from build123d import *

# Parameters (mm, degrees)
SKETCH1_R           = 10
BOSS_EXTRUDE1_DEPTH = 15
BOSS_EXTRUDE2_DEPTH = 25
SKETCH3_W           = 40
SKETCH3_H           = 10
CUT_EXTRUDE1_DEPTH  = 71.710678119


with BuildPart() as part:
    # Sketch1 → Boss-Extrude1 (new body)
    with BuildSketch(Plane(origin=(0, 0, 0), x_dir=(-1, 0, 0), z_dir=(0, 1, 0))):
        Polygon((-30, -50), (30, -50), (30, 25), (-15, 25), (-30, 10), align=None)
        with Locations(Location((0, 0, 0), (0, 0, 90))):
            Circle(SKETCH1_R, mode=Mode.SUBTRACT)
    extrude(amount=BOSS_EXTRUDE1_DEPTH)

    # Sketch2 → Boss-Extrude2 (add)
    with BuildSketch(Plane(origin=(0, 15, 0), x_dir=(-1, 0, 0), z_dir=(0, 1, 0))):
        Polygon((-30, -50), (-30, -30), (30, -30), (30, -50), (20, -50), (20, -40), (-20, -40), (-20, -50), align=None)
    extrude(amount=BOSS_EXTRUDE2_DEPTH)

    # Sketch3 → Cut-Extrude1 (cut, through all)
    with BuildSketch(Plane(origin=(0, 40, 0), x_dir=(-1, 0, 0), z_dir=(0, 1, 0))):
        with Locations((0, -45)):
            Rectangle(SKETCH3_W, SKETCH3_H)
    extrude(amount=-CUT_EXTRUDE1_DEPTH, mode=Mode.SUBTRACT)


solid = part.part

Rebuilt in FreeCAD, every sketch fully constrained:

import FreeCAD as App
import Part
import Sketcher
Q = App.Units.Quantity


def add_polygon(sketch, points):
    """Adds a closed chain of lines whose ends are joined by coincident constraints."""
    first, n = sketch.GeometryCount, len(points)
    for a, b in zip(points, points[1:] + points[:1]):
        sketch.addGeometry(Part.LineSegment(App.Vector(*a, 0), App.Vector(*b, 0)), False)
    for i in range(n):
        sketch.addConstraint(Sketcher.Constraint("Coincident", first + i, 2, first + (i + 1) % n, 1))

doc = App.newDocument("Part")
params = doc.addObject("Spreadsheet::Sheet", "Params")
for row, (alias, value) in enumerate([
    ("sketch1_diameter", "20 mm"),
    ("sketch1_width", "60 mm"),
    ("sketch1_width2", "45 mm"),
    ("sketch1_height", "75 mm"),
    ("pad1_length", "15 mm"),
    ("sketch2_width", "10 mm"),
    ("sketch2_width2", "40 mm"),
    ("sketch2_height", "20 mm"),
    ("pad2_length", "25 mm"),
    ("sketch3_width", "40 mm"),
    ("sketch3_height", "10 mm"),
], start=1):
    params.set(f"A{row}", alias)
    params.set(f"B{row}", "=" + value)
    params.setAlias(f"B{row}", alias)

body = doc.addObject("PartDesign::Body", "Body")

# Sketch on XZ plane
sketch1 = body.newObject("Sketcher::SketchObject", "Sketch")
sketch1.AttachmentSupport = (doc.getObject("XZ_Plane"), [""])
sketch1.MapMode = "FlatFace"
add_polygon(sketch1, [(30, -50), (-30, -50), (-30, 25), (15, 25), (30, 10)])  # lines 0-4
sketch1.addGeometry(Part.Circle(App.Vector(0, 0, 0), App.Vector(0, 0, 1), 10), False)  # 5
sketch1.addConstraint(Sketcher.Constraint("Horizontal", 0))
sketch1.addConstraint(Sketcher.Constraint("Vertical", 1))
sketch1.addConstraint(Sketcher.Constraint("Horizontal", 2))
sketch1.addConstraint(Sketcher.Constraint("Vertical", 4))
sketch1.addConstraint(Sketcher.Constraint("Coincident", 5, 3, -1, 1))
sketch1.addConstraint(Sketcher.Constraint("Equal", 0, 4))
sketch1.addConstraint(Sketcher.Constraint("Diameter", 5, Q("20 mm")))
sketch1.addConstraint(Sketcher.Constraint("DistanceX", 0, 2, 0, 1, Q("60 mm")))
sketch1.addConstraint(Sketcher.Constraint("DistanceX", 2, 1, 2, 2, Q("45 mm")))
sketch1.addConstraint(Sketcher.Constraint("DistanceY", 1, 1, 1, 2, Q("75 mm")))
sketch1.addConstraint(Sketcher.Constraint("DistanceX", 0, 2, -1, 1, Q("30 mm")))
sketch1.addConstraint(Sketcher.Constraint("DistanceY", 0, 2, -1, 1, Q("50 mm")))
sketch1.setExpression("Constraints[11]", "Params.sketch1_diameter")
sketch1.setExpression("Constraints[12]", "Params.sketch1_width")
sketch1.setExpression("Constraints[13]", "Params.sketch1_width2")
sketch1.setExpression("Constraints[14]", "Params.sketch1_height")
pad1 = body.newObject("PartDesign::Pad", "Pad")
pad1.Profile = sketch1
pad1.setExpression("Length", "Params.pad1_length")
pad1.Reversed = True

# Sketch on XZ plane
sketch2 = body.newObject("Sketcher::SketchObject", "Sketch001")
sketch2.AttachmentSupport = (doc.getObject("XZ_Plane"), [""])
sketch2.MapMode = "FlatFace"
sketch2.AttachmentOffset = App.Placement(App.Vector(0, 0, -15), App.Rotation())
add_polygon(sketch2, [(30, -30), (30, -50), (20, -50), (20, -40), (-20, -40), (-20, -50), (-30, -50), (-30, -30)])  # lines 0-7
sketch2.addConstraint(Sketcher.Constraint("Vertical", 0))
sketch2.addConstraint(Sketcher.Constraint("Horizontal", 1))
sketch2.addConstraint(Sketcher.Constraint("Vertical", 2))
sketch2.addConstraint(Sketcher.Constraint("Horizontal", 3))
sketch2.addConstraint(Sketcher.Constraint("Vertical", 4))
sketch2.addConstraint(Sketcher.Constraint("Horizontal", 5))
sketch2.addConstraint(Sketcher.Constraint("Vertical", 6))
sketch2.addConstraint(Sketcher.Constraint("Horizontal", 7))
sketch2.addConstraint(Sketcher.Constraint("Symmetric", 1, 2, 4, 2, -2))
sketch2.addConstraint(Sketcher.Constraint("Equal", 1, 5))
sketch2.addConstraint(Sketcher.Constraint("Equal", 5, 2))
sketch2.addConstraint(Sketcher.Constraint("DistanceX", 1, 2, 1, 1, Q("10 mm")))
sketch2.addConstraint(Sketcher.Constraint("DistanceX", 3, 2, 3, 1, Q("40 mm")))
sketch2.addConstraint(Sketcher.Constraint("DistanceY", 0, 2, 0, 1, Q("20 mm")))
sketch2.addConstraint(Sketcher.Constraint("DistanceY", 0, 2, -1, 1, Q("50 mm")))
sketch2.setExpression("Constraints[19]", "Params.sketch2_width")
sketch2.setExpression("Constraints[20]", "Params.sketch2_width2")
sketch2.setExpression("Constraints[21]", "Params.sketch2_height")
pad2 = body.newObject("PartDesign::Pad", "Pad001")
pad2.Profile = sketch2
pad2.setExpression("Length", "Params.pad2_length")
pad2.Reversed = True

# Sketch on XZ plane
sketch3 = body.newObject("Sketcher::SketchObject", "Sketch002")
sketch3.AttachmentSupport = (doc.getObject("XZ_Plane"), [""])
sketch3.MapMode = "FlatFace"
sketch3.AttachmentOffset = App.Placement(App.Vector(0, 0, -40), App.Rotation())
add_polygon(sketch3, [(20, -40), (20, -50), (-20, -50), (-20, -40)])  # lines 0-3
sketch3.addConstraint(Sketcher.Constraint("Vertical", 0))
sketch3.addConstraint(Sketcher.Constraint("Horizontal", 1))
sketch3.addConstraint(Sketcher.Constraint("Vertical", 2))
sketch3.addConstraint(Sketcher.Constraint("Horizontal", 3))
sketch3.addConstraint(Sketcher.Constraint("DistanceX", 1, 2, 1, 1, Q("40 mm")))
sketch3.addConstraint(Sketcher.Constraint("DistanceY", 0, 2, 0, 1, Q("10 mm")))
sketch3.addConstraint(Sketcher.Constraint("DistanceX", -1, 1, 0, 2, Q("20 mm")))
sketch3.addConstraint(Sketcher.Constraint("DistanceY", 0, 2, -1, 1, Q("50 mm")))
sketch3.setExpression("Constraints[8]", "Params.sketch3_width")
sketch3.setExpression("Constraints[9]", "Params.sketch3_height")
pocket1 = body.newObject("PartDesign::Pocket", "Pocket")
pocket1.Profile = sketch3
pocket1.Type = "ThroughAll"
pocket1.Reversed = True

doc.recompute()
